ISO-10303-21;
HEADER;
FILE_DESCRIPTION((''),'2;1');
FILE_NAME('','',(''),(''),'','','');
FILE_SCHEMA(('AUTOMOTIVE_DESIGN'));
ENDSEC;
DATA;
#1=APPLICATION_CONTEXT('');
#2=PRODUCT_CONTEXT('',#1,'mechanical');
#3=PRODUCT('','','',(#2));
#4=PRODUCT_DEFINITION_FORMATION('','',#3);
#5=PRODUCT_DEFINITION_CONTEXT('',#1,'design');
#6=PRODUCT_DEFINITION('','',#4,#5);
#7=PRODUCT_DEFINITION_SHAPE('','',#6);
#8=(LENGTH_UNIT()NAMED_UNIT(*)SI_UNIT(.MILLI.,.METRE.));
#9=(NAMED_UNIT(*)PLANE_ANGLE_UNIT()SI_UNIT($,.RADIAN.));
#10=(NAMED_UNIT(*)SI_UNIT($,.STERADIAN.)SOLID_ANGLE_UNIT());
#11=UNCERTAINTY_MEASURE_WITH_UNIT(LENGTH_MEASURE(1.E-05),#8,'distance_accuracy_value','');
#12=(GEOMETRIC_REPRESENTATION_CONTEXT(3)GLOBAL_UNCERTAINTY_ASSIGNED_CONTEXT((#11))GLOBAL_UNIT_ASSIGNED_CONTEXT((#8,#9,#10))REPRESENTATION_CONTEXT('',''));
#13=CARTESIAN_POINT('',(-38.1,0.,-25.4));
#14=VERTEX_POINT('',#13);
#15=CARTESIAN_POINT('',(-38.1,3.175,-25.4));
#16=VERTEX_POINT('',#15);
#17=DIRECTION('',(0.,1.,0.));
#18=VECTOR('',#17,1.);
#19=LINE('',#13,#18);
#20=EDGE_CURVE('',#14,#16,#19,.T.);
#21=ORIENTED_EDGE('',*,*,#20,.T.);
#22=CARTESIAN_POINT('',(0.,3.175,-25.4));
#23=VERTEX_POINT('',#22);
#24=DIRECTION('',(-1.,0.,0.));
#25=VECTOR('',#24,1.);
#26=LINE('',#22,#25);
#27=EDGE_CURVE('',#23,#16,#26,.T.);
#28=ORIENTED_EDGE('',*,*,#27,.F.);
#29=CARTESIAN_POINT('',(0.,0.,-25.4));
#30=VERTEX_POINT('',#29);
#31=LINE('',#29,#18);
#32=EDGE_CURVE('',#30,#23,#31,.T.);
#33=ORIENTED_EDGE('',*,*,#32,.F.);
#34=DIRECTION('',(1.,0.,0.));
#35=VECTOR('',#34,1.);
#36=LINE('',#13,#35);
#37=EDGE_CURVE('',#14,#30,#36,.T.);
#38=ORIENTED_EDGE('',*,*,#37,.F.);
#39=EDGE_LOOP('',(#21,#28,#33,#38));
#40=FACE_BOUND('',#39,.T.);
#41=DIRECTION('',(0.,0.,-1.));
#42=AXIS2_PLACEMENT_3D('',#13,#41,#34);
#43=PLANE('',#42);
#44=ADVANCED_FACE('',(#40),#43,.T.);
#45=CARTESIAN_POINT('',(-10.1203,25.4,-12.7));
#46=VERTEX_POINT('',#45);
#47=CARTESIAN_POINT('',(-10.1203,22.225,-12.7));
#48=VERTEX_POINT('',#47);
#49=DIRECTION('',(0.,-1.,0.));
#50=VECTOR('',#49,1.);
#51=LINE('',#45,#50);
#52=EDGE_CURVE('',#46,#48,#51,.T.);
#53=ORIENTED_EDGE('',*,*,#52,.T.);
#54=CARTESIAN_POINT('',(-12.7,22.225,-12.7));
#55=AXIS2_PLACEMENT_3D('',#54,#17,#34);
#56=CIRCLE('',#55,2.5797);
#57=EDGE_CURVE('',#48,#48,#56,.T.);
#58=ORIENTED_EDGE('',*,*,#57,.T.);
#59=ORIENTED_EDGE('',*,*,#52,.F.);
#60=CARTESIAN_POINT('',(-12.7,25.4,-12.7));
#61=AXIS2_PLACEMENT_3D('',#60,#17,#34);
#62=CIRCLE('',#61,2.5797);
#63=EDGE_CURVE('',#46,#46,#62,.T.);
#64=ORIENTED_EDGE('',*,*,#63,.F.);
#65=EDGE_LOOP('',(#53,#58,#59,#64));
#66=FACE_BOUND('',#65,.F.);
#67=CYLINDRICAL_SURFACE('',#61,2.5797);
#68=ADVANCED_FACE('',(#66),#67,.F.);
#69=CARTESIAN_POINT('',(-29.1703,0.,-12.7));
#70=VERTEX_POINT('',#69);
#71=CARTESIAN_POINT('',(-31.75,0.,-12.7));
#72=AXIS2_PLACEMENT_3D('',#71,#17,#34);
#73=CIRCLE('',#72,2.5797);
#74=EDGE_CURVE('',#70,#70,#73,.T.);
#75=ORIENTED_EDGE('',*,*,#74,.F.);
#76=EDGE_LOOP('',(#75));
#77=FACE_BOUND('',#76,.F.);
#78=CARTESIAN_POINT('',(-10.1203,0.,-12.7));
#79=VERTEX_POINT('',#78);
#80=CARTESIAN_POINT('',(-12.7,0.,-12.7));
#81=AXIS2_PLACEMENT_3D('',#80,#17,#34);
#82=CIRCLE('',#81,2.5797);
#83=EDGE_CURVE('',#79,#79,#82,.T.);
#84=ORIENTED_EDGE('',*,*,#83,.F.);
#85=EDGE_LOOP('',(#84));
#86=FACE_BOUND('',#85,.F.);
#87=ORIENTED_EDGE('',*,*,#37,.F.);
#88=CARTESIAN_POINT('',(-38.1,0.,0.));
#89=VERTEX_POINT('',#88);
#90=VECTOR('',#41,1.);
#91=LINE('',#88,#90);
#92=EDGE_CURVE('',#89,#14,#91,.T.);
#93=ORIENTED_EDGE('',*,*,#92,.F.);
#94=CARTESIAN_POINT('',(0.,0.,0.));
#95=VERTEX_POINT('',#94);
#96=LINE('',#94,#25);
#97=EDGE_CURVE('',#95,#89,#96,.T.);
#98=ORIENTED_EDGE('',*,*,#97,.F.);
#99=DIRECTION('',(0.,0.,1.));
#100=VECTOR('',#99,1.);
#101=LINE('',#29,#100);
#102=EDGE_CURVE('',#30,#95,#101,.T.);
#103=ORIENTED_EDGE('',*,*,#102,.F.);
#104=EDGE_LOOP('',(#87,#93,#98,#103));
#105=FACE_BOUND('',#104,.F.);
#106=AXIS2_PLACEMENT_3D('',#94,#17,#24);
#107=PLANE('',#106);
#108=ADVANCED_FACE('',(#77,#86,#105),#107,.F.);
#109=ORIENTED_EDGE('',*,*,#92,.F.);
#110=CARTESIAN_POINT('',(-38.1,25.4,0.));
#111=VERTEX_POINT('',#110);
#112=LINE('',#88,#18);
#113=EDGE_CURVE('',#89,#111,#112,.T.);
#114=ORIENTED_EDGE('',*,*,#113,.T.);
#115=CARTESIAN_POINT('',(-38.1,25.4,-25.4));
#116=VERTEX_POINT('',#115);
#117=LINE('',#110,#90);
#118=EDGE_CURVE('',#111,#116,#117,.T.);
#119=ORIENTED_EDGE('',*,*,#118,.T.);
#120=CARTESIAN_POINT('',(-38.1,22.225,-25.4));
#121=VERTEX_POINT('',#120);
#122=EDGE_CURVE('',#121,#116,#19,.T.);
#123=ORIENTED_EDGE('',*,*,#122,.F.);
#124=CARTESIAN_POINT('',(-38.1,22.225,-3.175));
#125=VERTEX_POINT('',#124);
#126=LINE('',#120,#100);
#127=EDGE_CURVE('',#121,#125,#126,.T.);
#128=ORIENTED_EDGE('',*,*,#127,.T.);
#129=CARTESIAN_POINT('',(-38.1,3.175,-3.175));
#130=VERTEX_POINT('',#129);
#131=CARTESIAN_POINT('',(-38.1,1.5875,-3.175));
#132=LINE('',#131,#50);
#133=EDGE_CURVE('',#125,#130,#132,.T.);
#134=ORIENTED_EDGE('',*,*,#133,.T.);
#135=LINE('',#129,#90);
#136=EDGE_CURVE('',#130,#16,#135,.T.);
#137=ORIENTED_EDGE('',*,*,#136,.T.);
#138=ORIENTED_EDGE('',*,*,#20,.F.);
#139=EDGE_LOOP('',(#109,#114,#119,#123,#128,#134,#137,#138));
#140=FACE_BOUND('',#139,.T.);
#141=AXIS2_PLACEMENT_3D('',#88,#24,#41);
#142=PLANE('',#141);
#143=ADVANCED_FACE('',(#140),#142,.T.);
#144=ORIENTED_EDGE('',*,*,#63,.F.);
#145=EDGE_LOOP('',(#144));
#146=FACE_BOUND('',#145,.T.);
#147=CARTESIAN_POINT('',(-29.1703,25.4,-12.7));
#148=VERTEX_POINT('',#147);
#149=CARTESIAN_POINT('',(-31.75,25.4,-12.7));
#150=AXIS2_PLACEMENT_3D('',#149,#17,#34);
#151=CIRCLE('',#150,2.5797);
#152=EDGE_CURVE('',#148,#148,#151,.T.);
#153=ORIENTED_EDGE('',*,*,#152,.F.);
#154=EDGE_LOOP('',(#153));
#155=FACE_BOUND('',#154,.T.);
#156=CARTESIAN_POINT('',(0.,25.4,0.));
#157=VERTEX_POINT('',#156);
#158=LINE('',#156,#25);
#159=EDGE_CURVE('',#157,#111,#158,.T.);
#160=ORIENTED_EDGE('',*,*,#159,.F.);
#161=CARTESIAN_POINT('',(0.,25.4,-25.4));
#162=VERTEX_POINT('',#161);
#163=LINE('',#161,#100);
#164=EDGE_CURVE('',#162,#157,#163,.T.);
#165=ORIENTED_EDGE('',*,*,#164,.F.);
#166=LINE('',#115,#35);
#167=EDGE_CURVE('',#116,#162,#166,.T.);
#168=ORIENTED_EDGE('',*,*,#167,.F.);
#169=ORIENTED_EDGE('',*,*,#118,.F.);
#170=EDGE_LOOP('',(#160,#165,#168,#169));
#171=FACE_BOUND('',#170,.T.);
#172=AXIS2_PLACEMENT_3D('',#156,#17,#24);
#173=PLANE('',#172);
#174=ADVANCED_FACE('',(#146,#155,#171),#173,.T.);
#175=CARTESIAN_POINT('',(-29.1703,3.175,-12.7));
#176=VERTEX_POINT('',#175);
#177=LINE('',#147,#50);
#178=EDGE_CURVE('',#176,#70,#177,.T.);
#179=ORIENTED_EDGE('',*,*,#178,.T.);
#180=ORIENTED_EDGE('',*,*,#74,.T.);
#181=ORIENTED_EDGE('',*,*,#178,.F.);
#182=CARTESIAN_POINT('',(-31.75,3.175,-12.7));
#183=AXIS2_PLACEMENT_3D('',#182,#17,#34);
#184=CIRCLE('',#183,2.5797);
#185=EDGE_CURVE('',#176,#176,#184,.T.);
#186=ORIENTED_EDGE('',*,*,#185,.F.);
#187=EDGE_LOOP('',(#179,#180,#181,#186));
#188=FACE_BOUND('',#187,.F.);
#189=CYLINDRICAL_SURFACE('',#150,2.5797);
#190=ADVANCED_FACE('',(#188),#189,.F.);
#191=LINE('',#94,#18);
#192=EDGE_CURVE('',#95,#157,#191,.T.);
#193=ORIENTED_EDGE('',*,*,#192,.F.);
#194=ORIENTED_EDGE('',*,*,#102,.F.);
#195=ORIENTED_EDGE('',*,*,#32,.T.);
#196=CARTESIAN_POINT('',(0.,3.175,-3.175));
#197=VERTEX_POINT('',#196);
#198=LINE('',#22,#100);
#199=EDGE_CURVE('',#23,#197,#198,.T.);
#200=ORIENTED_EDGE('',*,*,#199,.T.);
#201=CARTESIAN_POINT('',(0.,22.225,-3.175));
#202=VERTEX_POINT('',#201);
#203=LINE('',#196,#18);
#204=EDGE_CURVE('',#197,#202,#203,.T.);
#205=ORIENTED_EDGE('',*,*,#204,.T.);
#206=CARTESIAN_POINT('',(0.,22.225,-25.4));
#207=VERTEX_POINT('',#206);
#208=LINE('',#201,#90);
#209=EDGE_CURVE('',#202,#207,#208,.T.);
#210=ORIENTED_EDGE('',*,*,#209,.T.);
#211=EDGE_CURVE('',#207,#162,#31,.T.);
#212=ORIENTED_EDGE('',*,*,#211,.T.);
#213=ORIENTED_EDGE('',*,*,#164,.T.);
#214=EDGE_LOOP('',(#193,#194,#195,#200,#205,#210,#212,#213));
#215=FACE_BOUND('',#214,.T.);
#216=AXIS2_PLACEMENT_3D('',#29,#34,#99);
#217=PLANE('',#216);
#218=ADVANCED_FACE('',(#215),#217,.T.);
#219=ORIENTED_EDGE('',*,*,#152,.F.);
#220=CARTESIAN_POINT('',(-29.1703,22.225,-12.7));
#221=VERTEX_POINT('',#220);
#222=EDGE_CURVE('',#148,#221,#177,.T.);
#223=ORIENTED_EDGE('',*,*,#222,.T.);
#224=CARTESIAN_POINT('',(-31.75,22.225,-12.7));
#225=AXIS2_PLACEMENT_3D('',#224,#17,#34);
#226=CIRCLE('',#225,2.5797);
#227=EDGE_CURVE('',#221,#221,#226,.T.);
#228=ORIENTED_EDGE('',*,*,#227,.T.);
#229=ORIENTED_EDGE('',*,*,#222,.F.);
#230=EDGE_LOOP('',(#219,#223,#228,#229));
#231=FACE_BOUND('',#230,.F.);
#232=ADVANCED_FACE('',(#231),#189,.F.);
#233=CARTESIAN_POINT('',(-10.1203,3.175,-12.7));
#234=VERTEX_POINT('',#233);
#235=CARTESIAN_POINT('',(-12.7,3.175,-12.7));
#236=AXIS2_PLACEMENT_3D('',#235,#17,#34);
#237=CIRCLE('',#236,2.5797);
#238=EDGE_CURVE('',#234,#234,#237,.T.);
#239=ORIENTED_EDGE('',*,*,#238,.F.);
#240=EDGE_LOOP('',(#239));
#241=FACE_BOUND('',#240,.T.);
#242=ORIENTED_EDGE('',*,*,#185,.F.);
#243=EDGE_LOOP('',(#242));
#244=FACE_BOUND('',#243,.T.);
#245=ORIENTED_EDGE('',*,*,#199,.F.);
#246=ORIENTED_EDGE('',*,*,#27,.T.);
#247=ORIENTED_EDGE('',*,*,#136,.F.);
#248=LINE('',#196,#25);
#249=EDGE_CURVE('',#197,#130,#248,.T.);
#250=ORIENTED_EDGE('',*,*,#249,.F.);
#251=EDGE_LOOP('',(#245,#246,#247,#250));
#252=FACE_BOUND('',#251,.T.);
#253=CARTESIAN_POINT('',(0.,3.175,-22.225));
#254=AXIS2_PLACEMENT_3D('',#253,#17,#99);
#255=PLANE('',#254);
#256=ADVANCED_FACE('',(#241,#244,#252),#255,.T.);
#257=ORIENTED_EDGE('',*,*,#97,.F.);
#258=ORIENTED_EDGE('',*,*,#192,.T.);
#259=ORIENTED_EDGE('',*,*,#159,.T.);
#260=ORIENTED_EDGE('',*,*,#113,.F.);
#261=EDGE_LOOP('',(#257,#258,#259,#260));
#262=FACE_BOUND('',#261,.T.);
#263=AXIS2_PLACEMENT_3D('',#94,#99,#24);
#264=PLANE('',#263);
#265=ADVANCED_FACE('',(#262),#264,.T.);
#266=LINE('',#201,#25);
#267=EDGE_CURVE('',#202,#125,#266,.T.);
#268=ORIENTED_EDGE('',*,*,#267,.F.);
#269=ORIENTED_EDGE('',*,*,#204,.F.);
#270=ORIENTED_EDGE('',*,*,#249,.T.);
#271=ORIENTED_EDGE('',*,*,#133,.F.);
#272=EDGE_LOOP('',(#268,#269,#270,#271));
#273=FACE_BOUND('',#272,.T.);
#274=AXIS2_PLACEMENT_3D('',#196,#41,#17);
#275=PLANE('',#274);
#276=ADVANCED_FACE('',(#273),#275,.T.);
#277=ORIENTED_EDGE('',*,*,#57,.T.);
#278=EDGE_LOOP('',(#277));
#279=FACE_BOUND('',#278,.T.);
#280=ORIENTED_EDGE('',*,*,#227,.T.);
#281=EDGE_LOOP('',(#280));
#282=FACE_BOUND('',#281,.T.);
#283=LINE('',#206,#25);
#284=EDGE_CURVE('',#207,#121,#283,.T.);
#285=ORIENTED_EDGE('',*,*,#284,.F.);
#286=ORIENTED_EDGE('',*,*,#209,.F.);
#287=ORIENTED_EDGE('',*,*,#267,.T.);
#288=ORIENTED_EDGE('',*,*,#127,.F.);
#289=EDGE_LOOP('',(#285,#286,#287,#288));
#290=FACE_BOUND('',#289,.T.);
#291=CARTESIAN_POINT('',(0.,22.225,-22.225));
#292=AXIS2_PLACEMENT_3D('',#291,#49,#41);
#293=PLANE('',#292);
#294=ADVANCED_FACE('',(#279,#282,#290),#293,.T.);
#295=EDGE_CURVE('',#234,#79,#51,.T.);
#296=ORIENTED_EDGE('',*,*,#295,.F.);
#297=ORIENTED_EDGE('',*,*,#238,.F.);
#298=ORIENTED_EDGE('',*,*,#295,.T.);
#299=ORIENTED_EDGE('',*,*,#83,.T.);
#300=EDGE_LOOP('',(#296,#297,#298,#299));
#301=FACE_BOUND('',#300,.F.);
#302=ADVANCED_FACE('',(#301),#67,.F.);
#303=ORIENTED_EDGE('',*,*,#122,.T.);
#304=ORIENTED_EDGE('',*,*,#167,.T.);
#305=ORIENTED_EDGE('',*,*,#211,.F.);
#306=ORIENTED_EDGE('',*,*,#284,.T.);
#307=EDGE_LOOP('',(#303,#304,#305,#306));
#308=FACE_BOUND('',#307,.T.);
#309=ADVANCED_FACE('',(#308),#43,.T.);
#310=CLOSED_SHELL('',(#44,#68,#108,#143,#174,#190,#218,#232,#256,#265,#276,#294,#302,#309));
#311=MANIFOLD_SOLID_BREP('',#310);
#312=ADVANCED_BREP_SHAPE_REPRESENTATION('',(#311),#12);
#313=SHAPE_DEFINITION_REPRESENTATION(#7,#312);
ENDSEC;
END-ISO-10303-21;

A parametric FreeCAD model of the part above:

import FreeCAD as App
import Part
import Sketcher

V = App.Vector
Q = App.Units.Quantity


def add_polygon(sketch, points):
    """Adds a closed chain of lines whose ends are joined by coincident constraints."""
    first, n = sketch.GeometryCount, len(points)
    for a, b in zip(points, points[1:] + points[:1]):
        sketch.addGeometry(Part.LineSegment(App.Vector(*a, 0), App.Vector(*b, 0)), False)
    for i in range(n):
        sketch.addConstraint(Sketcher.Constraint("Coincident", first + i, 2, first + (i + 1) % n, 1))

doc = App.newDocument("Part")
body = doc.addObject("PartDesign::Body", "Body")

# Sketch on XZ plane
sketch1 = body.newObject("Sketcher::SketchObject", "Sketch")
sketch1.AttachmentSupport = (doc.getObject("XZ_Plane"), [""])
sketch1.MapMode = "FlatFace"
add_polygon(sketch1, [(-38.1, 0), (0, 0), (0, -25.4), (-38.1, -25.4)])  # lines 0-3
sketch1.addConstraint(Sketcher.Constraint("Horizontal", 0))
sketch1.addConstraint(Sketcher.Constraint("Vertical", 1))
sketch1.addConstraint(Sketcher.Constraint("Horizontal", 2))
sketch1.addConstraint(Sketcher.Constraint("Vertical", 3))
sketch1.addConstraint(Sketcher.Constraint("Coincident", 0, 2, -1, 1))
sketch1.addConstraint(Sketcher.Constraint("DistanceY", 1, 2, 1, 1, Q("1 in")))
sketch1.addConstraint(Sketcher.Constraint("DistanceX", 0, 1, 0, 2, Q("1.5 in")))
pad1 = body.newObject("PartDesign::Pad", "Pad")
pad1.Profile = sketch1
pad1.Length = Q("1 in")
pad1.Reversed = True

# Sketch on XZ plane
sketch2 = body.newObject("Sketcher::SketchObject", "Sketch001")
sketch2.AttachmentSupport = (doc.getObject("XZ_Plane"), [""])
sketch2.MapMode = "FlatFace"
sketch2.AttachmentOffset = App.Placement(V(0, 0, -1 * 25.4), App.Rotation())
sketch2.addGeometry(Part.Circle(V(-31.75, -12.7, 0), V(0, 0, 1), 2.5797), False)
sketch2.addGeometry(Part.Circle(V(-12.7, -12.7, 0), V(0, 0, 1), 2.5797), False)
sketch2.addConstraint(Sketcher.Constraint("Equal", 0, 1))
sketch2.addConstraint(Sketcher.Constraint("Horizontal", 0, 3, 1, 3))
sketch2.addConstraint(Sketcher.Constraint("Diameter", 0, Q("0.203126 in")))
sketch2.addConstraint(Sketcher.Constraint("DistanceY", 0, 3, -1, 1, Q("0.5 in")))
sketch2.addConstraint(Sketcher.Constraint("DistanceX", 1, 3, -1, 1, Q("0.5 in")))
sketch2.addConstraint(Sketcher.Constraint("DistanceX", 0, 3, 1, 3, Q("0.75 in")))
pocket1 = body.newObject("PartDesign::Pocket", "Pocket")
pocket1.Profile = sketch2
pocket1.Length = Q("2.5 in")
pocket1.Reversed = True

# Sketch on YZ plane
sketch3 = body.newObject("Sketcher::SketchObject", "Sketch002")
sketch3.AttachmentSupport = (doc.getObject("YZ_Plane"), [""])
sketch3.MapMode = "FlatFace"
add_polygon(sketch3, [(3.175, -3.175), (3.175, -25.4), (22.225, -25.4), (22.225, -3.175)])  # lines 0-3
sketch3.addConstraint(Sketcher.Constraint("Vertical", 0))
sketch3.addConstraint(Sketcher.Constraint("Horizontal", 1))
sketch3.addConstraint(Sketcher.Constraint("Vertical", 2))
sketch3.addConstraint(Sketcher.Constraint("Horizontal", 3))
sketch3.addConstraint(Sketcher.Constraint("DistanceX", -1, 1, 0, 2, Q("0.125 in")))
sketch3.addConstraint(Sketcher.Constraint("DistanceY", 2, 2, -1, 1, Q("0.125 in")))
sketch3.addConstraint(Sketcher.Constraint("DistanceY", 0, 2, -1, 1, Q("1 in")))
sketch3.addConstraint(Sketcher.Constraint("DistanceX", 1, 1, 1, 2, Q("0.75 in")))
pocket2 = body.newObject("PartDesign::Pocket", "Pocket001")
pocket2.Profile = sketch3
pocket2.Length = Q("5 in")

doc.recompute()
